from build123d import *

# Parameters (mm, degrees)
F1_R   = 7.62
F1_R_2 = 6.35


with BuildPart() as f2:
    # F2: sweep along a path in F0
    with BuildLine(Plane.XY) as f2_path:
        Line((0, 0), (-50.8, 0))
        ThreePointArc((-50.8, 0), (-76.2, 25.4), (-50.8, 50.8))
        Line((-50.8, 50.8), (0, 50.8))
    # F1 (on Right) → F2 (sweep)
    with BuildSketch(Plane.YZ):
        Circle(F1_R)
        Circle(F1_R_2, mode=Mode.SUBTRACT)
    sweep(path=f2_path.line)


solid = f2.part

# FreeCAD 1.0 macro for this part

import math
import FreeCAD as App
import Part
import Sketcher

V = App.Vector
Q = App.Units.Quantity

doc = App.newDocument("Part")
params = doc.addObject("Spreadsheet::Sheet", "Params")
for row, (alias, value) in enumerate([
    ("sketch1_diameter", "0.6 in"),
    ("sketch1_diameter2", "0.5 in"),
    ("sketch2_radius", "1 in"),
    ("sketch2_width", "2 in"),
], start=1):
    params.set(f"A{row}", alias)
    params.set(f"B{row}", "=" + value)
    params.setAlias(f"B{row}", alias)

body = doc.addObject("PartDesign::Body", "Body")

# Sketch on YZ plane
sketch1 = body.newObject("Sketcher::SketchObject", "Sketch")
sketch1.AttachmentSupport = (doc.getObject("YZ_Plane"), [""])
sketch1.MapMode = "FlatFace"
sketch1.addGeometry(Part.Circle(V(0, 0, 0), V(0, 0, 1), 7.62), False)
sketch1.addGeometry(Part.Circle(V(0, 0, 0), V(0, 0, 1), 6.35), False)
sketch1.addConstraint(Sketcher.Constraint("Coincident", 0, 3, -1, 1))
sketch1.addConstraint(Sketcher.Constraint("Coincident", 1, 3, -1, 1))
sketch1.addConstraint(Sketcher.Constraint("Diameter", 0, Q("0.6 in")))
sketch1.addConstraint(Sketcher.Constraint("Diameter", 1, Q("0.5 in")))
sketch1.setExpression("Constraints[2]", "Params.sketch1_diameter")
sketch1.setExpression("Constraints[3]", "Params.sketch1_diameter2")

# Sketch on XY plane
sketch2 = body.newObject("Sketcher::SketchObject", "Sketch001")
sketch2.AttachmentSupport = (doc.getObject("XY_Plane"), [""])
sketch2.MapMode = "FlatFace"
sketch2.addGeometry(Part.LineSegment(V(0, 0, 0), V(-50.8, 0, 0)), False)
sketch2.addGeometry(Part.ArcOfCircle(Part.Circle(V(-50.8, 25.4, 0), V(0, 0, 1), 25.4), math.radians(90), math.radians(270)), False)
sketch2.addGeometry(Part.LineSegment(V(-50.8, 50.8, 0), V(0, 50.8, 0)), False)
sketch2.addConstraint(Sketcher.Constraint("Tangent", 0, 2, 1, 2))
sketch2.addConstraint(Sketcher.Constraint("Tangent", 1, 1, 2, 1))
sketch2.addConstraint(Sketcher.Constraint("Horizontal", 0))
sketch2.addConstraint(Sketcher.Constraint("Horizontal", 2))
sketch2.addConstraint(Sketcher.Constraint("Coincident", 0, 1, -1, 1))
sketch2.addConstraint(Sketcher.Constraint("PointOnObject", 2, 2, -2))
sketch2.addConstraint(Sketcher.Constraint("Radius", 1, Q("1 in")))
sketch2.addConstraint(Sketcher.Constraint("DistanceX", 0, 2, 0, 1, Q("2 in")))
sketch2.setExpression("Constraints[6]", "Params.sketch2_radius")
sketch2.setExpression("Constraints[7]", "Params.sketch2_width")
doc.recompute()

additivepipe = body.newObject("PartDesign::AdditivePipe", "AdditivePipe")
additivepipe.Profile = sketch1
additivepipe.Spine = (sketch2, ["Edge1", "Edge2", "Edge3"])

doc.recompute()
